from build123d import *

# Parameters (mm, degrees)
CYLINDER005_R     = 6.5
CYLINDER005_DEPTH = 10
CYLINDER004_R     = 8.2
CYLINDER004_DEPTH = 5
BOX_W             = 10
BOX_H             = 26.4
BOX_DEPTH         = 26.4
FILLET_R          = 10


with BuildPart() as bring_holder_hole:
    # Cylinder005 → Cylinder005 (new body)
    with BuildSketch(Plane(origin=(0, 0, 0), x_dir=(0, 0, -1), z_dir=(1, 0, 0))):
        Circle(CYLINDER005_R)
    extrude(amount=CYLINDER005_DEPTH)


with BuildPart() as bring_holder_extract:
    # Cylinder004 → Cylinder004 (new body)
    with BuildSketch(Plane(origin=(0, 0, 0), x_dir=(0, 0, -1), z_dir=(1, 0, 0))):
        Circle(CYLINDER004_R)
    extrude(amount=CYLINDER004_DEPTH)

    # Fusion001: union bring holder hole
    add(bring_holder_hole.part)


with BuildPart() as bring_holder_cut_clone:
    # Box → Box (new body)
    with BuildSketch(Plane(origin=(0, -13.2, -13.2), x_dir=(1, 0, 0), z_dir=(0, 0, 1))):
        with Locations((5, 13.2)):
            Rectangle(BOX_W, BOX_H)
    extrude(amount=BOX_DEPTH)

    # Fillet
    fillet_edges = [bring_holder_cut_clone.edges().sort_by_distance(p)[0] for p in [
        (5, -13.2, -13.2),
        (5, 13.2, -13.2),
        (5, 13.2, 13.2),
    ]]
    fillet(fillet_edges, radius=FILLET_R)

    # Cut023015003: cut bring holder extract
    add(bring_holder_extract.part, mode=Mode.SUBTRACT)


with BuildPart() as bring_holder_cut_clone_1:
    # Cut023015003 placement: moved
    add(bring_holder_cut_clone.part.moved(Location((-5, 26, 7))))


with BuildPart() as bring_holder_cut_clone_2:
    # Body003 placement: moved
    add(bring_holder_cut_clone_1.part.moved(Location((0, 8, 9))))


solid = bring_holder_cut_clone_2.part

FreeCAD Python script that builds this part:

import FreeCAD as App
import Part
import Sketcher
from FreeCAD import Vector
Q = App.Units.Quantity


def edges_at(feature, points):
    """Names of the edges that pass closest to the given points."""
    edges = feature.Shape.Edges
    near = lambda p: min(range(len(edges)), key=lambda i: edges[i].distToShape(Part.Vertex(*p))[0])
    return sorted({f"Edge{near(p) + 1}" for p in points})

doc = App.newDocument("Part")
params = doc.addObject("Spreadsheet::Sheet", "Params")
for row, (alias, value) in enumerate([
    ("sketch1_diameter", "13 mm"),
    ("pad1_length", "10 mm"),
    ("sketch2_diameter", "16.4 mm"),
    ("pad2_length", "5 mm"),
    ("sketch3_width", "10 mm"),
    ("sketch3_height", "26.4 mm"),
    ("pad3_length", "26.4 mm"),
    ("fillet_radius", "10 mm"),
], start=1):
    params.set(f"A{row}", alias)
    params.set(f"B{row}", "=" + value)
    params.setAlias(f"B{row}", alias)

body = doc.addObject("PartDesign::Body", "Body")

# Sketch on YZ plane
sketch1 = body.newObject("Sketcher::SketchObject", "Sketch")
sketch1.AttachmentSupport = (doc.getObject("YZ_Plane"), [""])
sketch1.MapMode = "FlatFace"
sketch1.addGeometry(Part.Circle(Vector(0, 0, 0), Vector(0, 0, 1), 6), False)
sketch1.addConstraint([
    Sketcher.Constraint("Coincident", 0, 3, -1, 1),
    Sketcher.Constraint("Diameter", 0, Q("13 mm")),
])
sketch1.setExpression("Constraints[1]", "Params.sketch1_diameter")
pad1 = body.newObject("PartDesign::Pad", "Pad")
pad1.Profile = sketch1
pad1.setExpression("Length", "Params.pad1_length")
body2 = doc.addObject("PartDesign::Body", "Body001")

# Sketch on YZ plane
sketch2 = body2.newObject("Sketcher::SketchObject", "Sketch001")
sketch2.AttachmentSupport = (doc.getObject("YZ_Plane001"), [""])
sketch2.MapMode = "FlatFace"
sketch2.addGeometry(Part.Circle(Vector(0, 0, 0), Vector(0, 0, 1), 8), False)
sketch2.addConstraint([
    Sketcher.Constraint("Coincident", 0, 3, -1, 1),
    Sketcher.Constraint("Diameter", 0, Q("16.4 mm")),
])
sketch2.setExpression("Constraints[1]", "Params.sketch2_diameter")
pad2 = body2.newObject("PartDesign::Pad", "Pad001")
pad2.Profile = sketch2
pad2.setExpression("Length", "Params.pad2_length")
doc.recompute()

boolean = body2.newObject("PartDesign::Boolean", "Boolean")
boolean.Type = "Fuse"
boolean.addObjects([body])
body3 = doc.addObject("PartDesign::Body", "Body002")

# Sketch on XY plane
sketch3 = body3.newObject("Sketcher::SketchObject", "Sketch002")
sketch3.AttachmentSupport = (doc.getObject("XY_Plane002"), [""])
sketch3.MapMode = "FlatFace"
sketch3.AttachmentOffset = App.Placement(Vector(0, 0, -13.2), App.Rotation())
sketch3.addGeometry([
    Part.LineSegment(Vector(0, 13, 0), Vector(0, -13, 0)),
    Part.LineSegment(Vector(0, -13, 0), Vector(10, -13, 0)),
    Part.LineSegment(Vector(10, -13, 0), Vector(10, 13, 0)),
    Part.LineSegment(Vector(10, 13, 0), Vector(0, 13, 0)),
], False)
sketch3.addConstraint([
    Sketcher.Constraint("Coincident", 0, 2, 1, 1),
    Sketcher.Constraint("Coincident", 1, 2, 2, 1),
    Sketcher.Constraint("Coincident", 2, 2, 3, 1),
    Sketcher.Constraint("Coincident", 3, 2, 0, 1),
    Sketcher.Constraint("Vertical", 0),
    Sketcher.Constraint("Horizontal", 1),
    Sketcher.Constraint("Vertical", 2),
    Sketcher.Constraint("Horizontal", 3),
    Sketcher.Constraint("Symmetric", 0, 2, 3, 2, -1, 1),
    Sketcher.Constraint("DistanceX", 1, 1, 1, 2, Q("10 mm")),
    Sketcher.Constraint("DistanceY", 0, 2, 0, 1, Q("26.4 mm")),
])
sketch3.setExpression("Constraints[9]", "Params.sketch3_width")
sketch3.setExpression("Constraints[10]", "Params.sketch3_height")
pad3 = body3.newObject("PartDesign::Pad", "Pad002")
pad3.Profile = sketch3
pad3.setExpression("Length", "Params.pad3_length")
doc.recompute()

fillet = body3.newObject("PartDesign::Fillet", "Fillet")
fillet.Base = (pad3, edges_at(pad3, [(5, -13.2, -13.2), (5, 13.2, -13.2), (5, 13.2, 13.2)]))
fillet.setExpression("Radius", "Params.fillet_radius")
doc.recompute()

boolean2 = body3.newObject("PartDesign::Boolean", "Boolean001")
boolean2.Type = "Cut"
boolean2.addObjects([body2])
body4 = doc.addObject("PartDesign::Body", "Body003")
doc.recompute()

body3.Placement = App.Placement(Vector(-5, 26, 7), App.Rotation(Vector(0, 0, 1), 0))
boolean3 = body4.newObject("PartDesign::Boolean", "Boolean002")
boolean3.Type = "Fuse"
boolean3.addObjects([body3])
body5 = doc.addObject("PartDesign::Body", "Body004")
doc.recompute()

body4.Placement = App.Placement(Vector(0, 8, 9), App.Rotation(Vector(0, 0, 1), 0))
boolean4 = body5.newObject("PartDesign::Boolean", "Boolean003")
boolean4.Type = "Fuse"
boolean4.addObjects([body4])

doc.recompute()
